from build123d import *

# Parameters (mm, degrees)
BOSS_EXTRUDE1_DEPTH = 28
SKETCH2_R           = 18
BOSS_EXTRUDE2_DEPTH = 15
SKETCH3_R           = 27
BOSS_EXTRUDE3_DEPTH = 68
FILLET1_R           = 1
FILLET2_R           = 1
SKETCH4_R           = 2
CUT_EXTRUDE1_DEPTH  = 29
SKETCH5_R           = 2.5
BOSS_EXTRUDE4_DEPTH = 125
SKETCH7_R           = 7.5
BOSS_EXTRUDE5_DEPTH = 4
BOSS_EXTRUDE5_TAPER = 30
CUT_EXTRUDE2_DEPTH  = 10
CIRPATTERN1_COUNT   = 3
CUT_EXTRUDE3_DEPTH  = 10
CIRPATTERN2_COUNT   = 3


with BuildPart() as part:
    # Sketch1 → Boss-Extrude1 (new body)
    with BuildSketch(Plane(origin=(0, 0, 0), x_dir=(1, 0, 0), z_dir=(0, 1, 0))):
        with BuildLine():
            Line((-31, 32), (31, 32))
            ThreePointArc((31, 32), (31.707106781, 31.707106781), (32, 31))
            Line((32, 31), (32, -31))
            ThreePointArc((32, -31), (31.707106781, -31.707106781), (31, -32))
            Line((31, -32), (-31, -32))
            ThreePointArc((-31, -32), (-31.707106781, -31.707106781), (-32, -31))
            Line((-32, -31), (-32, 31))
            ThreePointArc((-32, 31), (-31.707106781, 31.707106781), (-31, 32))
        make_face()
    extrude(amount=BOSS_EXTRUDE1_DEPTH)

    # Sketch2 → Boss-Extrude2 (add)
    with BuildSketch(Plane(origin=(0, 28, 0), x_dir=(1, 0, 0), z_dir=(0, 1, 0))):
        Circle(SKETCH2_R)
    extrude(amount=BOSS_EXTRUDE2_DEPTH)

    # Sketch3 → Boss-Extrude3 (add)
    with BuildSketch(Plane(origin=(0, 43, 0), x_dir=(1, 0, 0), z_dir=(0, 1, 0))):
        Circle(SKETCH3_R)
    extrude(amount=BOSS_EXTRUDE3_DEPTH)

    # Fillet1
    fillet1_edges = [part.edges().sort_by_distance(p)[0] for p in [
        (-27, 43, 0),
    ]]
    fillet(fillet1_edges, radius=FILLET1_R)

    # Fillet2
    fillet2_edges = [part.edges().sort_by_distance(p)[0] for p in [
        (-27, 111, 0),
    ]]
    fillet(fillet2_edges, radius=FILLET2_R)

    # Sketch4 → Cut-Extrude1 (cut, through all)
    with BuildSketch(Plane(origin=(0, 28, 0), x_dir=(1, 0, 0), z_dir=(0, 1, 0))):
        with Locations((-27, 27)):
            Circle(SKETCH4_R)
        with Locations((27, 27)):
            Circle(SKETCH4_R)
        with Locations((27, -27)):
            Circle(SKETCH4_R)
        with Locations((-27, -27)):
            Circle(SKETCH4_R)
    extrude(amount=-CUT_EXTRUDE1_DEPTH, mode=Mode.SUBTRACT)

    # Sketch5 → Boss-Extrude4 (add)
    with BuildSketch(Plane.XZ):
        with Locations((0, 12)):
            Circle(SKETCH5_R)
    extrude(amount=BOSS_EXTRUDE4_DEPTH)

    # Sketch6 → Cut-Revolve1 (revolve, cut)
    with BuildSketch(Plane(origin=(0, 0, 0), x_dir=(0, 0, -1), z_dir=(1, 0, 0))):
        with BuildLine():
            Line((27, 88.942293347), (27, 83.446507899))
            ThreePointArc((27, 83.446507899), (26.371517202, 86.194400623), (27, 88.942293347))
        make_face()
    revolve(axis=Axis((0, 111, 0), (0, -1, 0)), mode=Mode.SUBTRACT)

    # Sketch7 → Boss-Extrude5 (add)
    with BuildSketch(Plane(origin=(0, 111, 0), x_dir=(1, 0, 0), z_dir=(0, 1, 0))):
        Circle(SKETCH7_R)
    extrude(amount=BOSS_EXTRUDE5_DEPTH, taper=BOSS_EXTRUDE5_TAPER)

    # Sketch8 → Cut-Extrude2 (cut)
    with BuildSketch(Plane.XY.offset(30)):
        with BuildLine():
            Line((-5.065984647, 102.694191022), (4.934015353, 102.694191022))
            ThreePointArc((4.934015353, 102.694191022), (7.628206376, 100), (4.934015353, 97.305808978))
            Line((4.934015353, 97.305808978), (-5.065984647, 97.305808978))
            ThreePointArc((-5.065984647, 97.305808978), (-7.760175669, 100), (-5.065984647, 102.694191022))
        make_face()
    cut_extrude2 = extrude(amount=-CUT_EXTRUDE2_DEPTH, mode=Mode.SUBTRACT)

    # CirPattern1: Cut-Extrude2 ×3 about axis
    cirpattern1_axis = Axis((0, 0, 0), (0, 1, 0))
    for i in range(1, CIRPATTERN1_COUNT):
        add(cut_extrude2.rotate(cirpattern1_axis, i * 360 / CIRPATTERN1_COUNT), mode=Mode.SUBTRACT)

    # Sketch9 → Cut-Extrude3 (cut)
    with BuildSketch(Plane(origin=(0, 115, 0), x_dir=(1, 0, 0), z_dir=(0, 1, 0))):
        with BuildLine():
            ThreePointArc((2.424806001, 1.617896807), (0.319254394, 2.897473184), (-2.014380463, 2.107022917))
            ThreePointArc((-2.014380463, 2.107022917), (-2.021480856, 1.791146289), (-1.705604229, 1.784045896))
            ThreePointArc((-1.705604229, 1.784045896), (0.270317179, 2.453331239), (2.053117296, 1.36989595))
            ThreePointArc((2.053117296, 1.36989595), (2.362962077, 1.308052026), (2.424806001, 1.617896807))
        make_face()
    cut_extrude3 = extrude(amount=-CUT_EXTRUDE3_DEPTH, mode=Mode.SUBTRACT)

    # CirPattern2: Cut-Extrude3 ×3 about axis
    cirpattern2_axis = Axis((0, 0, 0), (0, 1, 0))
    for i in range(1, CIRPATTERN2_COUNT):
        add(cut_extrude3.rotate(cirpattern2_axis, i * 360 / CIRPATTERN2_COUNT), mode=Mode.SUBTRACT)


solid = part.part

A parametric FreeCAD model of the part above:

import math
import FreeCAD as App
import Part
import Sketcher
from FreeCAD import Vector


def edges_at(feature, points):
    """Names of the edges that pass closest to the given points."""
    edges = feature.Shape.Edges
    near = lambda p: min(range(len(edges)), key=lambda i: edges[i].distToShape(Part.Vertex(*p))[0])
    return sorted({f"Edge{near(p) + 1}" for p in points})

doc = App.newDocument("Part")
body = doc.addObject("PartDesign::Body", "Body")

# Sketch on XZ plane
sketch1 = body.newObject("Sketcher::SketchObject", "Sketch")
sketch1.AttachmentSupport = (doc.getObject("XZ_Plane"), [""])
sketch1.MapMode = "FlatFace"
sketch1.addGeometry([
    Part.LineSegment(Vector(31, -32, 0), Vector(-31, -32, 0)),  # 0
    Part.ArcOfCircle(Part.Circle(Vector(-31, -31, 0), Vector(0, 0, 1), 1), math.radians(-180), math.radians(-90)),  # 1
    Part.LineSegment(Vector(-32, -31, 0), Vector(-32, 31, 0)),  # 2
    Part.ArcOfCircle(Part.Circle(Vector(-31, 31, 0), Vector(0, 0, 1), 1), math.radians(90), math.radians(180)),  # 3
    Part.LineSegment(Vector(-31, 32, 0), Vector(31, 32, 0)),  # 4
    Part.ArcOfCircle(Part.Circle(Vector(31, 31, 0), Vector(0, 0, 1), 1), math.radians(0), math.radians(90)),  # 5
    Part.LineSegment(Vector(32, 31, 0), Vector(32, -31, 0)),  # 6
    Part.ArcOfCircle(Part.Circle(Vector(31, -31, 0), Vector(0, 0, 1), 1), math.radians(-90), math.radians(0)),  # 7
], False)
sketch1.addConstraint([
    Sketcher.Constraint("Tangent", 0, 2, 1, 2),
    Sketcher.Constraint("Tangent", 1, 1, 2, 1),
    Sketcher.Constraint("Tangent", 2, 2, 3, 2),
    Sketcher.Constraint("Tangent", 3, 1, 4, 1),
    Sketcher.Constraint("Tangent", 4, 2, 5, 2),
    Sketcher.Constraint("Tangent", 5, 1, 6, 1),
    Sketcher.Constraint("Tangent", 6, 2, 7, 2),
    Sketcher.Constraint("Tangent", 7, 1, 0, 1),
    Sketcher.Constraint("Horizontal", 0),
    Sketcher.Constraint("Vertical", 2),
    Sketcher.Constraint("Horizontal", 4),
    Sketcher.Constraint("Vertical", 6),
    Sketcher.Constraint("Equal", 1, 3),
    Sketcher.Constraint("Equal", 3, 5),
    Sketcher.Constraint("Equal", 5, 7),
    Sketcher.Constraint("Symmetric", 1, 3, 5, 3, -1, 1),
    Sketcher.Constraint("Equal", 4, 2),
    Sketcher.Constraint("Radius", 1, 1.0),
    Sketcher.Constraint("DistanceX", 0, 2, 0, 1, 62.0),
])
pad1 = body.newObject("PartDesign::Pad", "Pad")
pad1.Profile = sketch1
pad1.Length = 28
pad1.Reversed = True

# Sketch on XZ plane
sketch2 = body.newObject("Sketcher::SketchObject", "Sketch001")
sketch2.AttachmentSupport = (doc.getObject("XZ_Plane"), [""])
sketch2.MapMode = "FlatFace"
sketch2.AttachmentOffset = App.Placement(Vector(0, 0, -28), App.Rotation())
sketch2.addGeometry(Part.Circle(Vector(0, 0, 0), Vector(0, 0, 1), 18), False)
sketch2.addConstraint([
    Sketcher.Constraint("Coincident", 0, 3, -1, 1),
    Sketcher.Constraint("Diameter", 0, 36.0),
])
pad2 = body.newObject("PartDesign::Pad", "Pad001")
pad2.Profile = sketch2
pad2.Length = 15
pad2.Reversed = True

# Sketch on XZ plane
sketch3 = body.newObject("Sketcher::SketchObject", "Sketch002")
sketch3.AttachmentSupport = (doc.getObject("XZ_Plane"), [""])
sketch3.MapMode = "FlatFace"
sketch3.AttachmentOffset = App.Placement(Vector(0, 0, -43), App.Rotation())
sketch3.addGeometry(Part.Circle(Vector(0, 0, 0), Vector(0, 0, 1), 27), False)
sketch3.addConstraint([
    Sketcher.Constraint("Coincident", 0, 3, -1, 1),
    Sketcher.Constraint("Diameter", 0, 54.0),
])
pad3 = body.newObject("PartDesign::Pad", "Pad002")
pad3.Profile = sketch3
pad3.Length = 68
pad3.Reversed = True
doc.recompute()

fillet = body.newObject("PartDesign::Fillet", "Fillet")
fillet.Base = (pad3, edges_at(pad3, [(-27, 43, 0)]))
fillet.Radius = 1
doc.recompute()

fillet2 = body.newObject("PartDesign::Fillet", "Fillet001")
fillet2.Base = (fillet, edges_at(fillet, [(-27, 111, 0)]))
fillet2.Radius = 1

# Sketch on XZ plane
sketch4 = body.newObject("Sketcher::SketchObject", "Sketch003")
sketch4.AttachmentSupport = (doc.getObject("XZ_Plane"), [""])
sketch4.MapMode = "FlatFace"
sketch4.AttachmentOffset = App.Placement(Vector(0, 0, -28), App.Rotation())
sketch4.addGeometry([
    Part.Circle(Vector(-27, -27, 0), Vector(0, 0, 1), 2),
    Part.Circle(Vector(27, -27, 0), Vector(0, 0, 1), 2),
    Part.Circle(Vector(27, 27, 0), Vector(0, 0, 1), 2),
    Part.Circle(Vector(-27, 27, 0), Vector(0, 0, 1), 2),
], False)
sketch4.addConstraint([
    Sketcher.Constraint("Equal", 0, 1),
    Sketcher.Constraint("Equal", 1, 2),
    Sketcher.Constraint("Equal", 2, 3),
    Sketcher.Constraint("Symmetric", 0, 3, 2, 3, -1, 1),
    Sketcher.Constraint("Symmetric", 1, 3, 3, 3, -1, 1),
    Sketcher.Constraint("Symmetric", 0, 3, 1, 3, -2),
    Sketcher.Constraint("Diameter", 0, 4.0),
    Sketcher.Constraint("DistanceX", 0, 3, -1, 1, 27.0),
    Sketcher.Constraint("DistanceY", 0, 3, -1, 1, 27.0),
])
pocket1 = body.newObject("PartDesign::Pocket", "Pocket")
pocket1.Profile = sketch4
pocket1.Type = "ThroughAll"
pocket1.Reversed = True

# Sketch on XZ plane
sketch5 = body.newObject("Sketcher::SketchObject", "Sketch004")
sketch5.AttachmentSupport = (doc.getObject("XZ_Plane"), [""])
sketch5.MapMode = "FlatFace"
sketch5.addGeometry(Part.Circle(Vector(0, 12, 0), Vector(0, 0, 1), 2.5), False)
sketch5.addConstraint([
    Sketcher.Constraint("PointOnObject", 0, 3, -2),
    Sketcher.Constraint("Diameter", 0, 5.0),
    Sketcher.Constraint("DistanceY", -1, 1, 0, 3, 12.0),
])
pad4 = body.newObject("PartDesign::Pad", "Pad003")
pad4.Profile = sketch5
pad4.Length = 125

# Sketch on YZ plane
sketch6 = body.newObject("Sketcher::SketchObject", "Sketch005")
sketch6.AttachmentSupport = (doc.getObject("YZ_Plane"), [""])
sketch6.MapMode = "FlatFace"
sketch6.addGeometry([
    Part.LineSegment(Vector(83, -27, 0), Vector(89, -27, 0)),
    Part.ArcOfCircle(Part.Circle(Vector(86, -33, 0), Vector(0, 0, 1), 6), math.radians(64), math.radians(116)),
], False)
sketch6.addConstraint([
    Sketcher.Constraint("Coincident", 0, 1, 1, 2),
    Sketcher.Constraint("Coincident", 1, 1, 0, 2),
    Sketcher.Constraint("Horizontal", 0),
    Sketcher.Constraint("DistanceY", 0, 1, -1, 1, 27.0),
    Sketcher.Constraint("Radius", 1, 6.321498),
    Sketcher.Constraint("DistanceX", -1, 1, 1, 3, 86.194401),
    Sketcher.Constraint("DistanceX", 0, 1, 0, 2, 5.495785),
])
groove = body.newObject("PartDesign::Groove", "Groove")
groove.Profile = sketch6
groove.ReferenceAxis = (sketch6, ["H_Axis"])
groove.Angle = 360

# Sketch on XZ plane
sketch7 = body.newObject("Sketcher::SketchObject", "Sketch006")
sketch7.AttachmentSupport = (doc.getObject("XZ_Plane"), [""])
sketch7.MapMode = "FlatFace"
sketch7.AttachmentOffset = App.Placement(Vector(0, 0, -111), App.Rotation())
sketch7.addGeometry(Part.Circle(Vector(0, 0, 0), Vector(0, 0, 1), 8), False)
sketch7.addConstraint([
    Sketcher.Constraint("Coincident", 0, 3, -1, 1),
    Sketcher.Constraint("Diameter", 0, 15.0),
])
pad5 = body.newObject("PartDesign::Pad", "Pad004")
pad5.Profile = sketch7
pad5.Length = 4
pad5.Reversed = True
pad5.TaperAngle = -30

# Sketch on XY plane
sketch8 = body.newObject("Sketcher::SketchObject", "Sketch007")
sketch8.AttachmentSupport = (doc.getObject("XY_Plane"), [""])
sketch8.MapMode = "FlatFace"
sketch8.AttachmentOffset = App.Placement(Vector(0, 0, 30), App.Rotation())
sketch8.addGeometry([
    Part.LineSegment(Vector(4.9, 102.7, 0), Vector(-5.1, 102.7, 0)),
    Part.ArcOfCircle(Part.Circle(Vector(-5.1, 100, 0), Vector(0, 0, 1), 2.7), math.radians(90), math.radians(270)),
    Part.LineSegment(Vector(-5.1, 97.3, 0), Vector(4.9, 97.3, 0)),
    Part.ArcOfCircle(Part.Circle(Vector(4.9, 100, 0), Vector(0, 0, 1), 2.7), math.radians(-90), math.radians(90)),
], False)
sketch8.addConstraint([
    Sketcher.Constraint("Tangent", 0, 2, 1, 1),
    Sketcher.Constraint("Tangent", 1, 2, 2, 1),
    Sketcher.Constraint("Tangent", 2, 2, 3, 1),
    Sketcher.Constraint("Tangent", 3, 2, 0, 1),
    Sketcher.Constraint("Horizontal", 0),
    Sketcher.Constraint("Horizontal", 2),
    Sketcher.Constraint("DistanceX", 0, 2, 0, 1, 10.0),
    Sketcher.Constraint("DistanceY", -1, 1, 1, 3, 100.0),
    Sketcher.Constraint("Radius", 1, 2.694191),
    Sketcher.Constraint("DistanceX", 1, 3, -1, 1, 5.065985),
])
pocket2 = body.newObject("PartDesign::Pocket", "Pocket001")
pocket2.Profile = sketch8
pocket2.Length = 10
doc.recompute()

polarpattern = body.newObject("PartDesign::PolarPattern", "PolarPattern")
polarpattern.Originals = [pocket2]
polarpattern.Axis = (doc.getObject("Y_Axis"), [""])
polarpattern.Angle = 360
polarpattern.Occurrences = 3
body.Tip = polarpattern

# Sketch on XZ plane
sketch9 = body.newObject("Sketcher::SketchObject", "Sketch008")
sketch9.AttachmentSupport = (doc.getObject("XZ_Plane"), [""])
sketch9.MapMode = "FlatFace"
sketch9.AttachmentOffset = App.Placement(Vector(0, 0, -115), App.Rotation())
sketch9.addGeometry([
    Part.ArcOfCircle(Part.Circle(Vector(0, 0, 0), Vector(0, 0, 1), 2.92), math.radians(-134), math.radians(-34)),
    Part.ArcOfCircle(Part.Circle(Vector(-1.86, -1.95, 0), Vector(0, 0, 1), 0.22), math.radians(46), math.radians(226)),
    Part.ArcOfCircle(Part.Circle(Vector(0, 0, 0), Vector(0, 0, 1), 2.47), math.radians(-134), math.radians(-34)),
    Part.ArcOfCircle(Part.Circle(Vector(2.24, -1.49, 0), Vector(0, 0, 1), 0.22), math.radians(-34), math.radians(146)),
], False)
sketch9.addConstraint([
    Sketcher.Constraint("Tangent", 0, 1, 1, 2),
    Sketcher.Constraint("Tangent", 1, 1, 2, 1),
    Sketcher.Constraint("Tangent", 2, 2, 3, 2),
    Sketcher.Constraint("Tangent", 3, 1, 0, 2),
    Sketcher.Constraint("Coincident", 0, 3, -1, 1),
    Sketcher.Constraint("Coincident", 2, 3, -1, 1),
    Sketcher.Constraint("Radius", 0, 2.915008),
    Sketcher.Constraint("Radius", 2, 2.468179),
    Sketcher.Constraint("DistanceY", 3, 3, 2, 2, 0.124),
    Sketcher.Constraint("DistanceX", 0, 1, -1, 1, 2.01438),
])
pocket3 = body.newObject("PartDesign::Pocket", "Pocket002")
pocket3.Profile = sketch9
pocket3.Length = 10
pocket3.Reversed = True
doc.recompute()

polarpattern2 = body.newObject("PartDesign::PolarPattern", "PolarPattern001")
polarpattern2.Originals = [pocket3]
polarpattern2.Axis = (doc.getObject("Y_Axis"), [""])
polarpattern2.Angle = 360
polarpattern2.Occurrences = 3
body.Tip = polarpattern2

doc.recompute()
